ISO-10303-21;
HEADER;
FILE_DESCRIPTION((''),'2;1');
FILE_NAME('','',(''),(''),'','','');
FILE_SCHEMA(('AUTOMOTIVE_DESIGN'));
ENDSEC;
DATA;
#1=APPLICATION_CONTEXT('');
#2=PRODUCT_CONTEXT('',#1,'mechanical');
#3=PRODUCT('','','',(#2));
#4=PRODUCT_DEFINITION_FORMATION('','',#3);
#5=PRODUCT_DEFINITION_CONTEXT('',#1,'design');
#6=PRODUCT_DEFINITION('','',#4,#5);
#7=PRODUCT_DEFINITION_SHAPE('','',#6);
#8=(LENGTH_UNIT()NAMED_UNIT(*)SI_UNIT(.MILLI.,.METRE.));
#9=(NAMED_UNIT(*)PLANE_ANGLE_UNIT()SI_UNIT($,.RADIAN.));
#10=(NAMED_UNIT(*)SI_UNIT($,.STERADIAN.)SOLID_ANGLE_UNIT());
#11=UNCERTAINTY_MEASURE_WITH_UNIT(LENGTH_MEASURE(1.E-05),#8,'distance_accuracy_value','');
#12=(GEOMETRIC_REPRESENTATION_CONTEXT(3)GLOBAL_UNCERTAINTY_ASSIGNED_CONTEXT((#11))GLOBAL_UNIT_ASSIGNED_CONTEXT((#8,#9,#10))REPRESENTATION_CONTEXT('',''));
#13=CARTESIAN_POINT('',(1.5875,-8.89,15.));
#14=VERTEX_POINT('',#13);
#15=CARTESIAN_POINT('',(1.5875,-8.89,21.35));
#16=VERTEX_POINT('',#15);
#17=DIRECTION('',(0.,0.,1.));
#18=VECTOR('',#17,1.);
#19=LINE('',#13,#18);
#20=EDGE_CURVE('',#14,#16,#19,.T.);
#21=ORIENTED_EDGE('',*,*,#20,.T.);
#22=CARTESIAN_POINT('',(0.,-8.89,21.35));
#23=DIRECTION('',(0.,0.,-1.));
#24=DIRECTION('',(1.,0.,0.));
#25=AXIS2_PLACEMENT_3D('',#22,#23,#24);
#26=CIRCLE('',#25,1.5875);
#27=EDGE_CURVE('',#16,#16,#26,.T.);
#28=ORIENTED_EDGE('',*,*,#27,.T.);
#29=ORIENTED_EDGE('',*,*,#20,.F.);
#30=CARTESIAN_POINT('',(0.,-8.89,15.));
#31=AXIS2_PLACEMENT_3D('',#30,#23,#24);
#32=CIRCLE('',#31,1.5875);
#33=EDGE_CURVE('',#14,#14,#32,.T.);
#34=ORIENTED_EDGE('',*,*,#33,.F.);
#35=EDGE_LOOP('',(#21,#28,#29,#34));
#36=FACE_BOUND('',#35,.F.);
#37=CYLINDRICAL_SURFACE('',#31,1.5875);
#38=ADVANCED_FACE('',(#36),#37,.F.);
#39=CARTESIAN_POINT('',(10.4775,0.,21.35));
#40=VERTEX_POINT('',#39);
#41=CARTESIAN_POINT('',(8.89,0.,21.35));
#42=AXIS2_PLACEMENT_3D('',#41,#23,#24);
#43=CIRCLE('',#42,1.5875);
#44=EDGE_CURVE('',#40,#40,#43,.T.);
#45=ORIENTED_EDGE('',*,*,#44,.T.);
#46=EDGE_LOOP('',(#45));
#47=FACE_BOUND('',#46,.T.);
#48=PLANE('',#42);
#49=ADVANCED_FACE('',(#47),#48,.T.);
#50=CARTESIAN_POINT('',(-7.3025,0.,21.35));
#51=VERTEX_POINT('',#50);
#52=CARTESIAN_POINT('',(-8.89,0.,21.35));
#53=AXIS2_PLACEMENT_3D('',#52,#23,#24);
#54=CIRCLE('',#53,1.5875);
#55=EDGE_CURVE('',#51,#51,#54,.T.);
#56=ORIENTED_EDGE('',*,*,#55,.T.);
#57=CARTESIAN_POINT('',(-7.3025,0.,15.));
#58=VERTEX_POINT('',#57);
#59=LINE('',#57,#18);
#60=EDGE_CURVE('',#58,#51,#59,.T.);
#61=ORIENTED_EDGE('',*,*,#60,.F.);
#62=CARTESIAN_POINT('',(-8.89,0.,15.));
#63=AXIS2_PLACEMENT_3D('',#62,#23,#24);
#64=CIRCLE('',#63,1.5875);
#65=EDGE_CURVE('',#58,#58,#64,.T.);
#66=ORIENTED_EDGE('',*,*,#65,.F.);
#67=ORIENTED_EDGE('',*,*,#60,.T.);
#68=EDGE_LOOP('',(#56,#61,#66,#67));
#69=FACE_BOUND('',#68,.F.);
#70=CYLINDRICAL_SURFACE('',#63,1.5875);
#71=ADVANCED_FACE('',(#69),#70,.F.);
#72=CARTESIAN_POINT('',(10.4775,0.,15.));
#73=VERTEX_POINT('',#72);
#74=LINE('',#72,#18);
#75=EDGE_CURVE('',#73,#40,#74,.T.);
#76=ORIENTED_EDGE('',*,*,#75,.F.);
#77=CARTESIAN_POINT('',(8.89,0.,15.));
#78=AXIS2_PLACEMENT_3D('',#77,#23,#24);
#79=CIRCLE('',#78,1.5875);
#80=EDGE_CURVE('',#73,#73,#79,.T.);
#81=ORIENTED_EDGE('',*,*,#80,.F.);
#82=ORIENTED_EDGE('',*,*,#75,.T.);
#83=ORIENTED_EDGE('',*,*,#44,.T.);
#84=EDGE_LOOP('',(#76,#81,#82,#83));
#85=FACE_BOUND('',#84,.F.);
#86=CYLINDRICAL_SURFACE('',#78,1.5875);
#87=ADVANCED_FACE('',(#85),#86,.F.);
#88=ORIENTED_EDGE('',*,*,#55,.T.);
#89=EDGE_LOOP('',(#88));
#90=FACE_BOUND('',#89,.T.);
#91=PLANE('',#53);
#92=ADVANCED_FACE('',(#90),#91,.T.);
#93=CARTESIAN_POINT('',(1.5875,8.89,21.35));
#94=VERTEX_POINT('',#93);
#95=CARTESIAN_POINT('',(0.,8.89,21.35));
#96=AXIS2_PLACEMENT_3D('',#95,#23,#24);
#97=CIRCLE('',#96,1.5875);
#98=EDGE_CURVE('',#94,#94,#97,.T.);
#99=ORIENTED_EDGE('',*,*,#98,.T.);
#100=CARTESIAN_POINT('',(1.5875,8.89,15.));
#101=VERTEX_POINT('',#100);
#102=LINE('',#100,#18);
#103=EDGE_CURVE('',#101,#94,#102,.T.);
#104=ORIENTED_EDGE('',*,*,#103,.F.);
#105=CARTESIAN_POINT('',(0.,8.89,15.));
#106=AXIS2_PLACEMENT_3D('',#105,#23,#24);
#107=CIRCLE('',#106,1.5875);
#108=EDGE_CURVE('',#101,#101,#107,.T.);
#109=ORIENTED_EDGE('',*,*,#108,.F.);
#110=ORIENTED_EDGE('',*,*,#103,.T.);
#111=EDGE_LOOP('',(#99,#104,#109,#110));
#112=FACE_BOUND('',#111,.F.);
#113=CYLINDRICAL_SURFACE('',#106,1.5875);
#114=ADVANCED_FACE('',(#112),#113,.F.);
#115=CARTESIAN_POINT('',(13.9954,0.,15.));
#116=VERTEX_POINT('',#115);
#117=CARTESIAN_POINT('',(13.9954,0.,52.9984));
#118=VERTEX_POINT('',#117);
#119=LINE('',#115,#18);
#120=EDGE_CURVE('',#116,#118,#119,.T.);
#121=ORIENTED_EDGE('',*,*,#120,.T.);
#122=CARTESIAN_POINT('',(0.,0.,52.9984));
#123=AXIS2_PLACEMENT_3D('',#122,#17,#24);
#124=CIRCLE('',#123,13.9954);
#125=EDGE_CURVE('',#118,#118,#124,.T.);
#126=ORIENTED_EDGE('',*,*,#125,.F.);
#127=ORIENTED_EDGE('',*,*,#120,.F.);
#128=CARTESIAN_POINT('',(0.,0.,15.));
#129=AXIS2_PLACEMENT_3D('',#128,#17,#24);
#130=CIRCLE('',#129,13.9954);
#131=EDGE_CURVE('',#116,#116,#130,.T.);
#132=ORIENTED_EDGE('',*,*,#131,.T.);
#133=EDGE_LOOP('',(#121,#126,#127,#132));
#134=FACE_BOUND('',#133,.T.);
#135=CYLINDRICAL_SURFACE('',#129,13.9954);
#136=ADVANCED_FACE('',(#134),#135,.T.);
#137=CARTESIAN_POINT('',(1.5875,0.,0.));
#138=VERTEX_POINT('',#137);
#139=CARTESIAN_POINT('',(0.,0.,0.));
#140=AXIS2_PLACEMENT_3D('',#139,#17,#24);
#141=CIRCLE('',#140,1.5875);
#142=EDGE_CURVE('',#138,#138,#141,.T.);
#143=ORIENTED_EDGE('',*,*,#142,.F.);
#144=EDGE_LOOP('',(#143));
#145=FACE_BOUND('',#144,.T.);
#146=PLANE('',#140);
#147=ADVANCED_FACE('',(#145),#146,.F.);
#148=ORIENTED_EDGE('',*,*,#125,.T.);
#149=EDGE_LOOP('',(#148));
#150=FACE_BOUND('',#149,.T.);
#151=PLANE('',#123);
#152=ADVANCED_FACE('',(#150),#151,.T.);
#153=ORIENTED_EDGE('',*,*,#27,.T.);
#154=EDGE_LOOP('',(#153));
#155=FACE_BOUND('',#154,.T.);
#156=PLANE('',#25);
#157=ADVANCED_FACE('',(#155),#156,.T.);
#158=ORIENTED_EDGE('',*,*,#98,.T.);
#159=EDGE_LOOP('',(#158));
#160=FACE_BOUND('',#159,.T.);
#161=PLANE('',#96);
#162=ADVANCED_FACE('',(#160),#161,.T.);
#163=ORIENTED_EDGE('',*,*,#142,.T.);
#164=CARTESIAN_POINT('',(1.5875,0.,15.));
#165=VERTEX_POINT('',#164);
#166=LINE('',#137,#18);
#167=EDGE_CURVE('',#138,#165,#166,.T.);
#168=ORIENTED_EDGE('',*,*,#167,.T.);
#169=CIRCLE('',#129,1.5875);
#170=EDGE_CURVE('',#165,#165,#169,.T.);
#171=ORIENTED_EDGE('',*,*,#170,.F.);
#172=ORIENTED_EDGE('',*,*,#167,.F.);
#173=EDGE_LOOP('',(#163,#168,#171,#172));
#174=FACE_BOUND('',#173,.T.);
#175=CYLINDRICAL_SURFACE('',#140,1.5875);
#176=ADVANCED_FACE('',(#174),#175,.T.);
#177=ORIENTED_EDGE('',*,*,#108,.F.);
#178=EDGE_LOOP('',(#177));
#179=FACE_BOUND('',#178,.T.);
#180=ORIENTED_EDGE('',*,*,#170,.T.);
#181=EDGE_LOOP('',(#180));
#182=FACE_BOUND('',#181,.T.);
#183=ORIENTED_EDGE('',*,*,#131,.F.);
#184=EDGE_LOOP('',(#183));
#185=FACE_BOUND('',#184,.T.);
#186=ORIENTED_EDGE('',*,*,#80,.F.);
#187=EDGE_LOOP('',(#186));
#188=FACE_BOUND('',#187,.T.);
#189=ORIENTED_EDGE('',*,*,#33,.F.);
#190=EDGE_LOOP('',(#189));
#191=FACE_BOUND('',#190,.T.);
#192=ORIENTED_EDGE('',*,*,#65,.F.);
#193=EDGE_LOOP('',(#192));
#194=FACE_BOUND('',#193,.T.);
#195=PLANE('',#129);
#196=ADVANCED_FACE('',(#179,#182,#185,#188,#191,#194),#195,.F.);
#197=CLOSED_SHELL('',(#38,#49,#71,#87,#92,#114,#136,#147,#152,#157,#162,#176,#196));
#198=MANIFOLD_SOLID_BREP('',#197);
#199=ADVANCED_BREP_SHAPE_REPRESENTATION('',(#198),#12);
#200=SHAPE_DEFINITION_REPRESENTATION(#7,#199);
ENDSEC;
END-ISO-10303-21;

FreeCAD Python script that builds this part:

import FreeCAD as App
import Part
import Sketcher
from FreeCAD import Vector
Q = App.Units.Quantity

doc = App.newDocument("Part")
body = doc.addObject("PartDesign::Body", "Body")

# Sketch on XZ plane
sketch1 = body.newObject("Sketcher::SketchObject", "Sketch")
sketch1.AttachmentSupport = (doc.getObject("XZ_Plane"), [""])
sketch1.MapMode = "FlatFace"
sketch1.addGeometry(Part.LineSegment(Vector(0, 53, 0), Vector(0, 0, 0)), False)
sketch1.addGeometry(Part.LineSegment(Vector(0, 0, 0), Vector(1.6, 0, 0)), False)
sketch1.addGeometry(Part.LineSegment(Vector(1.6, 0, 0), Vector(1.6, 15, 0)), False)
sketch1.addGeometry(Part.LineSegment(Vector(1.6, 15, 0), Vector(14, 15, 0)), False)
sketch1.addGeometry(Part.LineSegment(Vector(14, 15, 0), Vector(14, 53, 0)), False)
sketch1.addGeometry(Part.LineSegment(Vector(14, 53, 0), Vector(0, 53, 0)), False)
sketch1.addConstraint(Sketcher.Constraint("Coincident", 0, 2, 1, 1))
sketch1.addConstraint(Sketcher.Constraint("Coincident", 1, 2, 2, 1))
sketch1.addConstraint(Sketcher.Constraint("Coincident", 2, 2, 3, 1))
sketch1.addConstraint(Sketcher.Constraint("Coincident", 3, 2, 4, 1))
sketch1.addConstraint(Sketcher.Constraint("Coincident", 4, 2, 5, 1))
sketch1.addConstraint(Sketcher.Constraint("Coincident", 5, 2, 0, 1))
sketch1.addConstraint(Sketcher.Constraint("Vertical", 0))
sketch1.addConstraint(Sketcher.Constraint("Horizontal", 1))
sketch1.addConstraint(Sketcher.Constraint("Vertical", 2))
sketch1.addConstraint(Sketcher.Constraint("Horizontal", 3))
sketch1.addConstraint(Sketcher.Constraint("Vertical", 4))
sketch1.addConstraint(Sketcher.Constraint("Horizontal", 5))
sketch1.addConstraint(Sketcher.Constraint("Coincident", 0, 2, -1, 1))
sketch1.addConstraint(Sketcher.Constraint("DistanceX", 1, 1, 1, 2, Q("0.0625 in")))
sketch1.addConstraint(Sketcher.Constraint("DistanceX", 5, 2, 5, 1, Q("0.551 in")))
sketch1.addConstraint(Sketcher.Constraint("DistanceY", 4, 1, 4, 2, Q("1.496 in")))
sketch1.addConstraint(Sketcher.Constraint("DistanceY", 0, 2, 0, 1, Q("52.9984 mm")))
revolution = body.newObject("PartDesign::Revolution", "Revolution")
revolution.Profile = sketch1
revolution.ReferenceAxis = (sketch1, ["V_Axis"])
revolution.Angle = 360

# Sketch on XY plane
sketch2 = body.newObject("Sketcher::SketchObject", "Sketch001")
sketch2.AttachmentSupport = (doc.getObject("XY_Plane"), [""])
sketch2.MapMode = "FlatFace"
sketch2.AttachmentOffset = App.Placement(Vector(0, 0, 15), App.Rotation())
sketch2.addGeometry(Part.Circle(Vector(8.9, 0, 0), Vector(0, 0, 1), 1.6), False)
sketch2.addGeometry(Part.Circle(Vector(0, -8.9, 0), Vector(0, 0, 1), 1.6), False)
sketch2.addGeometry(Part.Circle(Vector(0, 8.9, 0), Vector(0, 0, 1), 1.6), False)
sketch2.addGeometry(Part.Circle(Vector(-8.9, 0, 0), Vector(0, 0, 1), 1.6), False)
sketch2.addConstraint(Sketcher.Constraint("Equal", 0, 1))
sketch2.addConstraint(Sketcher.Constraint("Equal", 1, 2))
sketch2.addConstraint(Sketcher.Constraint("Equal", 2, 3))
sketch2.addConstraint(Sketcher.Constraint("Symmetric", 1, 3, 2, 3, -1, 1))
sketch2.addConstraint(Sketcher.Constraint("Symmetric", 0, 3, 3, 3, -1, 1))
sketch2.addConstraint(Sketcher.Constraint("PointOnObject", 0, 3, -1))
sketch2.addConstraint(Sketcher.Constraint("PointOnObject", 1, 3, -2))
sketch2.addConstraint(Sketcher.Constraint("Diameter", 0, Q("0.125 in")))
sketch2.addConstraint(Sketcher.Constraint("DistanceY", 1, 3, 2, 3, Q("0.7 in")))
sketch2.addConstraint(Sketcher.Constraint("DistanceX", 3, 3, 0, 3, Q("0.7 in")))
pocket1 = body.newObject("PartDesign::Pocket", "Pocket")
pocket1.Profile = sketch2
pocket1.Length = Q("0.25 in")
pocket1.Reversed = True

doc.recompute()
